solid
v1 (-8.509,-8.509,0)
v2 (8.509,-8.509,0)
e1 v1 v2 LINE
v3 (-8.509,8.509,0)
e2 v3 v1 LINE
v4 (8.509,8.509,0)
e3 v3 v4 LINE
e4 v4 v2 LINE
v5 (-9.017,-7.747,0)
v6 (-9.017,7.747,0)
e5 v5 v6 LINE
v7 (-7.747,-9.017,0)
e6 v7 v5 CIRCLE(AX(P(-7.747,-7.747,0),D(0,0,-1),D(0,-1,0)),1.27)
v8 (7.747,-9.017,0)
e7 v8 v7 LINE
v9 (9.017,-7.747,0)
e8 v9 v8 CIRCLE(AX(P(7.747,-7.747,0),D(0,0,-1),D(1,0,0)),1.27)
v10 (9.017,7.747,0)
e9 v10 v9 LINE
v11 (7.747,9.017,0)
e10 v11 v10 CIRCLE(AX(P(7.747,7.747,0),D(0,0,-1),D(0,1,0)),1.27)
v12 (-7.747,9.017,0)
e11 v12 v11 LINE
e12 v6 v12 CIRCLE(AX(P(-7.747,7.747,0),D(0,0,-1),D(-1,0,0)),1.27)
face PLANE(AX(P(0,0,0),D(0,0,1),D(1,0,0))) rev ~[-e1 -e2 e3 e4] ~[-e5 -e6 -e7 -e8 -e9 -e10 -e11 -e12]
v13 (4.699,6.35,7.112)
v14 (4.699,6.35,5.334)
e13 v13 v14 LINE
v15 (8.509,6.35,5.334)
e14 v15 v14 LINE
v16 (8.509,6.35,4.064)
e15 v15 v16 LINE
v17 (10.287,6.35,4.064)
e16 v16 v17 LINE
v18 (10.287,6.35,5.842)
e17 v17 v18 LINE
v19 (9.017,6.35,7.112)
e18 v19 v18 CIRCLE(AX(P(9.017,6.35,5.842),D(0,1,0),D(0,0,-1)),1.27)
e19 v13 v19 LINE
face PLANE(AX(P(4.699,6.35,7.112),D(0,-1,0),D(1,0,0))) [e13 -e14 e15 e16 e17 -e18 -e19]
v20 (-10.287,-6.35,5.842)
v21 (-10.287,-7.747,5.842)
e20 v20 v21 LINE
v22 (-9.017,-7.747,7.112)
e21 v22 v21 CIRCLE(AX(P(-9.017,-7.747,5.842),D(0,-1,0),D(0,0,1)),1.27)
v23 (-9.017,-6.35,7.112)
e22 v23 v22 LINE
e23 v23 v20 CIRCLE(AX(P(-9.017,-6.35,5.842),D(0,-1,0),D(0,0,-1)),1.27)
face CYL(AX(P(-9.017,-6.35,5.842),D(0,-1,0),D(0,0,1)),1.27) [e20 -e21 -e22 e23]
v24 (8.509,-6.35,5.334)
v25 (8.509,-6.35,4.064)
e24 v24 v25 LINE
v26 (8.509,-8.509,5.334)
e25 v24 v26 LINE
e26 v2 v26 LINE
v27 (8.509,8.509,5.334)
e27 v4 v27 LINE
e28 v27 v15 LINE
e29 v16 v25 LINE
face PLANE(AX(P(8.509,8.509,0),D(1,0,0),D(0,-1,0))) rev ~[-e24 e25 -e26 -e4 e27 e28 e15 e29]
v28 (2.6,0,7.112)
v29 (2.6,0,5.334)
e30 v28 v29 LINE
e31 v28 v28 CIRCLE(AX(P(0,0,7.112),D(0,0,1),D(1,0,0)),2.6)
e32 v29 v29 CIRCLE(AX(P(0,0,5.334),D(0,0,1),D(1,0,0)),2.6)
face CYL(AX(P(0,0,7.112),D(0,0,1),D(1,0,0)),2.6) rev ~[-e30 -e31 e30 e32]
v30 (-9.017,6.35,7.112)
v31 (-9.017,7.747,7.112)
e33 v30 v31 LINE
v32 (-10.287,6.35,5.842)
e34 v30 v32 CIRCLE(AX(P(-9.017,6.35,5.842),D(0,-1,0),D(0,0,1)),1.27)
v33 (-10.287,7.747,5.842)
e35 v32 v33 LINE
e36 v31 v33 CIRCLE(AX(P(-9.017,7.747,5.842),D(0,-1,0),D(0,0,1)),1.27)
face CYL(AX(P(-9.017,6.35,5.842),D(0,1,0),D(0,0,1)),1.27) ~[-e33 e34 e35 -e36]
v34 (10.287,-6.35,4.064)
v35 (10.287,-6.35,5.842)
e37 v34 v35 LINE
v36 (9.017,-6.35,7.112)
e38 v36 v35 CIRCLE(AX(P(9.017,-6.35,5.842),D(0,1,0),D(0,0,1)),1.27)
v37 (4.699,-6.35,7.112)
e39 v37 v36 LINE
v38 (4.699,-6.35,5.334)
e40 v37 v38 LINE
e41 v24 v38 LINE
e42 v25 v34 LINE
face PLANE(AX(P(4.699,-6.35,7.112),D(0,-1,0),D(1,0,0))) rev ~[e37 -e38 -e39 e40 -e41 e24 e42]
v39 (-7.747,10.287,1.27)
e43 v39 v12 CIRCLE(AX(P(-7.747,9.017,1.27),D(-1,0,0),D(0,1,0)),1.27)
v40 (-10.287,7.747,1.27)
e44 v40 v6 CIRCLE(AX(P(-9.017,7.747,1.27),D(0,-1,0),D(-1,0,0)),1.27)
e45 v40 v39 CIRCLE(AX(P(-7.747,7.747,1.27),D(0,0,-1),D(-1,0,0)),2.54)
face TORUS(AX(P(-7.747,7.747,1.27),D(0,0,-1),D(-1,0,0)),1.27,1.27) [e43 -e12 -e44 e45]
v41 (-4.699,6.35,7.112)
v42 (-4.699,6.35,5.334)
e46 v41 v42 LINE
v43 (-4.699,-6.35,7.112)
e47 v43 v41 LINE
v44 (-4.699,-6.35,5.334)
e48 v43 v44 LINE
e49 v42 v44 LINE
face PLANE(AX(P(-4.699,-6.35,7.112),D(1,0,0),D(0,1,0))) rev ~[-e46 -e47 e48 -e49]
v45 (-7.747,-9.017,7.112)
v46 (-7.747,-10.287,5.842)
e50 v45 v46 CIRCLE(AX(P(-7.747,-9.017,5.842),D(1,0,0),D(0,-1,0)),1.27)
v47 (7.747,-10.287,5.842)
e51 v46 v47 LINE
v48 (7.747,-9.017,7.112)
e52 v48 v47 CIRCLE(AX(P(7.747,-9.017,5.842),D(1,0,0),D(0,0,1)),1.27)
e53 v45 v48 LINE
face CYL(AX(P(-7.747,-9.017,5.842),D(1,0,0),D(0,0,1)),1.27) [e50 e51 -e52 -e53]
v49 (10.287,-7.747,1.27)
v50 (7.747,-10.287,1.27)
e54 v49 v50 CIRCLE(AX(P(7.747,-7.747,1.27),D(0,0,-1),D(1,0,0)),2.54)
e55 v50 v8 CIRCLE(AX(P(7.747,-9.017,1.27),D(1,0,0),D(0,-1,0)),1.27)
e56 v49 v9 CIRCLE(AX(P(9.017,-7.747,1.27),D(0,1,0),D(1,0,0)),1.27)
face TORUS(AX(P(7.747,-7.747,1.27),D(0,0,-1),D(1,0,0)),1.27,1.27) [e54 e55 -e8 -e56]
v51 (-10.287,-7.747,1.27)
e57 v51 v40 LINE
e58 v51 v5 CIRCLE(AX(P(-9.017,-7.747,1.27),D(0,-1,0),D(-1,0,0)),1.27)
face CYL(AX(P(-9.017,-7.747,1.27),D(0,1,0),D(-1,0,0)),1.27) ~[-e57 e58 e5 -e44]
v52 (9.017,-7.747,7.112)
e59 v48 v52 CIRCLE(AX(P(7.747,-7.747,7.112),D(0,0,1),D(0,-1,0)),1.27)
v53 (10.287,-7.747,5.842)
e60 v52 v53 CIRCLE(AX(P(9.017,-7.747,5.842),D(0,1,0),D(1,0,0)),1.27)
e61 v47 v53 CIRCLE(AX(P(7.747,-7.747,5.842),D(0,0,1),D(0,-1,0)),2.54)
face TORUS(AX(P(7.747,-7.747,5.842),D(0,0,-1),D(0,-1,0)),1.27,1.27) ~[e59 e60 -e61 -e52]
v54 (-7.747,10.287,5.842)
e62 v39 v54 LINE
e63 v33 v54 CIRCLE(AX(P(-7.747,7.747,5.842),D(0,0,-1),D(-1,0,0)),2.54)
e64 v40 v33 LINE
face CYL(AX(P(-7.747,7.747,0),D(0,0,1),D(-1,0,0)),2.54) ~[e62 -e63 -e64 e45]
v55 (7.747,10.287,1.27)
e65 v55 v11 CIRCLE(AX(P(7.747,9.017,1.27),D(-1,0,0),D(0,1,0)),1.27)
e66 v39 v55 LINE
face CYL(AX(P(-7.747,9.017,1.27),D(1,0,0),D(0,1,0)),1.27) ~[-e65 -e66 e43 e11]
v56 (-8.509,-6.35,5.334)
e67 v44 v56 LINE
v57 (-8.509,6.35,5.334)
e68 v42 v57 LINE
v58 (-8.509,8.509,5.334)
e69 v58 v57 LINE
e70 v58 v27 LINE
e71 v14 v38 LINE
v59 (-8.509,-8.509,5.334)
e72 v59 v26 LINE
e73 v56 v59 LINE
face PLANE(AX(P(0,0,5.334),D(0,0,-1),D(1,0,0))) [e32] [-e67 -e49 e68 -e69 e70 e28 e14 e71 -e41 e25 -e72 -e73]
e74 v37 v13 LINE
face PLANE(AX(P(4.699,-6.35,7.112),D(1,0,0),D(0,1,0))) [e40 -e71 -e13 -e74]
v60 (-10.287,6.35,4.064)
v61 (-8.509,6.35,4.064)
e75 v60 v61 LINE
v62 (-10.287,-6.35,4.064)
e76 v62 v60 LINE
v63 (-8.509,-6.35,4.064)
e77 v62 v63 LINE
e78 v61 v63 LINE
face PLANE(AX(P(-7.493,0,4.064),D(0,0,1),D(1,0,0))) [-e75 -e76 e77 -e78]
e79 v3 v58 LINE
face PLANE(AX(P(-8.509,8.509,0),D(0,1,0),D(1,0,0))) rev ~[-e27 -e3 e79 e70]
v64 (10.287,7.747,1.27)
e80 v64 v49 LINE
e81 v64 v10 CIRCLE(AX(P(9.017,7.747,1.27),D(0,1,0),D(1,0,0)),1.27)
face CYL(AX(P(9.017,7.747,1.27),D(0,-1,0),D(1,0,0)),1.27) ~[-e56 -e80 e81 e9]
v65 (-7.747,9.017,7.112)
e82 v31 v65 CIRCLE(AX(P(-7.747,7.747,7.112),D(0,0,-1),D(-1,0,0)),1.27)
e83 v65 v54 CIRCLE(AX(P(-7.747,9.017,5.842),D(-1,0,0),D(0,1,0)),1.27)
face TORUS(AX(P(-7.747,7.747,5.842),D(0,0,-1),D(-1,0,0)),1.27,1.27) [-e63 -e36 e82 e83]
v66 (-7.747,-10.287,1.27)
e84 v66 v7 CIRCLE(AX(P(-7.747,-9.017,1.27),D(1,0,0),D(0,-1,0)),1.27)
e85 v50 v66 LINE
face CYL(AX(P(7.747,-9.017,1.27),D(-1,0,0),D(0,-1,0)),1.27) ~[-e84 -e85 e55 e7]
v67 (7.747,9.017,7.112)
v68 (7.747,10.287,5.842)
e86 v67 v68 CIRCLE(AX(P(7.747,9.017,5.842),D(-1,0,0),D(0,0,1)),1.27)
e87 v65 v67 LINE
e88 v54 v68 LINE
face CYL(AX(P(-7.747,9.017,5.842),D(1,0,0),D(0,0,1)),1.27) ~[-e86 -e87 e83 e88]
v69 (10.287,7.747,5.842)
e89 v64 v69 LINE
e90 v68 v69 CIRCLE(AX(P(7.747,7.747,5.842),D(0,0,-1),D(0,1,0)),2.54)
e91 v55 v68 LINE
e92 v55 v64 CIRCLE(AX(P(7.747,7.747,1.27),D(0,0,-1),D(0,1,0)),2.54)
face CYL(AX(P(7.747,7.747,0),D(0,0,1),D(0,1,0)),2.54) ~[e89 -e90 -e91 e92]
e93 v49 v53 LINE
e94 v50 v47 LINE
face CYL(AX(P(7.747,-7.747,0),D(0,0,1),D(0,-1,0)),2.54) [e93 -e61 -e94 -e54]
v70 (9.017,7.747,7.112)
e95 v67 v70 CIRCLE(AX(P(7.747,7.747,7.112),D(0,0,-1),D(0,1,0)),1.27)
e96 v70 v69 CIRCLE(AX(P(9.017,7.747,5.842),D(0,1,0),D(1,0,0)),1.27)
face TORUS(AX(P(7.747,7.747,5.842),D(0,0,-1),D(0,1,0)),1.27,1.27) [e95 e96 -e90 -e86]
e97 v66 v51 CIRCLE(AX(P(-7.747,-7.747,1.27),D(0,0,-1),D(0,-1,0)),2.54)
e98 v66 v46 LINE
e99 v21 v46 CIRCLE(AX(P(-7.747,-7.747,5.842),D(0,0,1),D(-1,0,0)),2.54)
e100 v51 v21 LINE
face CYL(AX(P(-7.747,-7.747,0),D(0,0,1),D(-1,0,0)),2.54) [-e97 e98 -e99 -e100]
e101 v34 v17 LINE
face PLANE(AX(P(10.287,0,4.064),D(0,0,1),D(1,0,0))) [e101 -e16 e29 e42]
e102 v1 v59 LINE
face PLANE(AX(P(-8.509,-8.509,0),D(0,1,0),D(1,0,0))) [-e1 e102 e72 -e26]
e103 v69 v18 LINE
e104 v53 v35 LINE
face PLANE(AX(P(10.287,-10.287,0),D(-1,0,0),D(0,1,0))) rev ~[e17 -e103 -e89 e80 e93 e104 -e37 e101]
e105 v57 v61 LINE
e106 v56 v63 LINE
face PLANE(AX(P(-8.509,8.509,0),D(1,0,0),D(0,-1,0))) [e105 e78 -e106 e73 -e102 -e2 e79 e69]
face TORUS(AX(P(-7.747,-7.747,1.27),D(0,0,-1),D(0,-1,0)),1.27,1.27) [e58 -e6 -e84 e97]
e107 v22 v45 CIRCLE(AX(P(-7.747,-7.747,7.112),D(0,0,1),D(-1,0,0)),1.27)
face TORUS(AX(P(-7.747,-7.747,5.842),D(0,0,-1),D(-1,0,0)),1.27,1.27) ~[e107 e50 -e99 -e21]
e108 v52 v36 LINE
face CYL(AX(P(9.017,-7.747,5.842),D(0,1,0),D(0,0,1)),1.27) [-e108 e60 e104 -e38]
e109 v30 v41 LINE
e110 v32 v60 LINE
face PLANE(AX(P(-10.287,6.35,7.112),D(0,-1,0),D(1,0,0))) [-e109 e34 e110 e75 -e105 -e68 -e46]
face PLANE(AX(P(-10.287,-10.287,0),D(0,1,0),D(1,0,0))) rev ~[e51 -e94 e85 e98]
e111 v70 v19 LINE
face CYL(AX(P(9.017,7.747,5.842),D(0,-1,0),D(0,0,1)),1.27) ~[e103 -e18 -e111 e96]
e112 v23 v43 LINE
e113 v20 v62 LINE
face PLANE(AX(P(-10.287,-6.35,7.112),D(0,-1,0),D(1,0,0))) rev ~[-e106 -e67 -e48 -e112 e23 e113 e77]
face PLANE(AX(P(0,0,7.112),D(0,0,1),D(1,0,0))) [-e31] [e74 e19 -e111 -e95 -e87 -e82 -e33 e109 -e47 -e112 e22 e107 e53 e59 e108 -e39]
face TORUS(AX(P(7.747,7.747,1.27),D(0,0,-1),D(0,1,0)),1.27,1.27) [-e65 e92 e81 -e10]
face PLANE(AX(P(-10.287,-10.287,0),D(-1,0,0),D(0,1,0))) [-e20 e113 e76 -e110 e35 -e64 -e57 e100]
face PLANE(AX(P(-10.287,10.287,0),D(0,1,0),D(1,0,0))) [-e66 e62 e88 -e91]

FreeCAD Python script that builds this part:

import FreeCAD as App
import Part
import Sketcher
from FreeCAD import Vector
Q = App.Units.Quantity


def edges_at(feature, points):
    """Names of the edges that pass closest to the given points."""
    edges = feature.Shape.Edges
    near = lambda p: min(range(len(edges)), key=lambda i: edges[i].distToShape(Part.Vertex(*p))[0])
    return sorted({f"Edge{near(p) + 1}" for p in points})

doc = App.newDocument("Part")
params = doc.addObject("Spreadsheet::Sheet", "Params")
for row, (alias, value) in enumerate([
    ("sketch1_width", "0.81 in"),
    ("pad1_length", "0.28 in"),
    ("sketch2_width", "0.67 in"),
    ("pocket1_length", "0.21 in"),
    ("fillet_radius", "0.1 in"),
    ("sketch3_height", "0.5 in"),
    ("sketch3_width", "0.22 in"),
    ("pocket2_length", "0.12 in"),
    ("sketch4_height", "0.5 in"),
    ("sketch4_width", "0.44 in"),
    ("pocket3_length", "0.12 in"),
    ("pocket4_length", "0.07 in"),
    ("fillet2_radius", "0.05 in"),
    ("fillet3_radius", "0.05 in"),
], start=1):
    params.set(f"A{row}", alias)
    params.set(f"B{row}", "=" + value)
    params.setAlias(f"B{row}", alias)

body = doc.addObject("PartDesign::Body", "Body")

# Sketch on XY plane
sketch1 = body.newObject("Sketcher::SketchObject", "Sketch")
sketch1.AttachmentSupport = (doc.getObject("XY_Plane"), [""])
sketch1.MapMode = "FlatFace"
sketch1.addGeometry([
    Part.LineSegment(Vector(-10, 10, 0), Vector(-10, -10, 0)),
    Part.LineSegment(Vector(-10, -10, 0), Vector(10, -10, 0)),
    Part.LineSegment(Vector(10, -10, 0), Vector(10, 10, 0)),
    Part.LineSegment(Vector(10, 10, 0), Vector(-10, 10, 0)),
], False)
sketch1.addConstraint([
    Sketcher.Constraint("Coincident", 0, 2, 1, 1),
    Sketcher.Constraint("Coincident", 1, 2, 2, 1),
    Sketcher.Constraint("Coincident", 2, 2, 3, 1),
    Sketcher.Constraint("Coincident", 3, 2, 0, 1),
    Sketcher.Constraint("Vertical", 0),
    Sketcher.Constraint("Horizontal", 1),
    Sketcher.Constraint("Vertical", 2),
    Sketcher.Constraint("Horizontal", 3),
    Sketcher.Constraint("Symmetric", 0, 2, 2, 2, -1, 1),
    Sketcher.Constraint("Equal", 3, 0),
    Sketcher.Constraint("DistanceX", 1, 1, 1, 2, Q("0.81 in")),
])
sketch1.setExpression("Constraints[10]", "Params.sketch1_width")
pad1 = body.newObject("PartDesign::Pad", "Pad")
pad1.Profile = sketch1
pad1.setExpression("Length", "Params.pad1_length")

# Sketch on XY plane
sketch2 = body.newObject("Sketcher::SketchObject", "Sketch001")
sketch2.AttachmentSupport = (doc.getObject("XY_Plane"), [""])
sketch2.MapMode = "FlatFace"
sketch2.addGeometry([
    Part.LineSegment(Vector(-9, -9, 0), Vector(-9, 9, 0)),
    Part.LineSegment(Vector(-9, 9, 0), Vector(9, 9, 0)),
    Part.LineSegment(Vector(9, 9, 0), Vector(9, -9, 0)),
    Part.LineSegment(Vector(9, -9, 0), Vector(-9, -9, 0)),
], False)
sketch2.addConstraint([
    Sketcher.Constraint("Coincident", 0, 2, 1, 1),
    Sketcher.Constraint("Coincident", 1, 2, 2, 1),
    Sketcher.Constraint("Coincident", 2, 2, 3, 1),
    Sketcher.Constraint("Coincident", 3, 2, 0, 1),
    Sketcher.Constraint("Vertical", 0),
    Sketcher.Constraint("Horizontal", 1),
    Sketcher.Constraint("Vertical", 2),
    Sketcher.Constraint("Horizontal", 3),
    Sketcher.Constraint("Symmetric", 0, 2, 2, 2, -1, 1),
    Sketcher.Constraint("Equal", 3, 0),
    Sketcher.Constraint("DistanceX", 1, 1, 1, 2, Q("0.67 in")),
])
sketch2.setExpression("Constraints[10]", "Params.sketch2_width")
pocket1 = body.newObject("PartDesign::Pocket", "Pocket")
pocket1.Profile = sketch2
pocket1.setExpression("Length", "Params.pocket1_length")
pocket1.Reversed = True
doc.recompute()

fillet = body.newObject("PartDesign::Fillet", "Fillet")
fillet.Base = (pocket1, edges_at(pocket1, [
    (-10.287, -10.287, 3.556),
    (10.287, 10.287, 3.556),
    (10.287, -10.287, 3.556),
    (-10.287, 10.287, 3.556),
]))
fillet.setExpression("Radius", "Params.fillet_radius")

# Sketch on XY plane
sketch3 = body.newObject("Sketcher::SketchObject", "Sketch002")
sketch3.AttachmentSupport = (doc.getObject("XY_Plane"), [""])
sketch3.MapMode = "FlatFace"
sketch3.AttachmentOffset = App.Placement(Vector(0, 0, 0.28 * 25.4), App.Rotation())
sketch3.addGeometry([
    Part.LineSegment(Vector(-10, 6, 0), Vector(-10, -6, 0)),
    Part.LineSegment(Vector(-10, -6, 0), Vector(-5, -6, 0)),
    Part.LineSegment(Vector(-5, -6, 0), Vector(-5, 6, 0)),
    Part.LineSegment(Vector(-5, 6, 0), Vector(-10, 6, 0)),
], False)
sketch3.addConstraint([
    Sketcher.Constraint("Coincident", 0, 2, 1, 1),
    Sketcher.Constraint("Coincident", 1, 2, 2, 1),
    Sketcher.Constraint("Coincident", 2, 2, 3, 1),
    Sketcher.Constraint("Coincident", 3, 2, 0, 1),
    Sketcher.Constraint("Vertical", 0),
    Sketcher.Constraint("Horizontal", 1),
    Sketcher.Constraint("Vertical", 2),
    Sketcher.Constraint("Horizontal", 3),
    Sketcher.Constraint("DistanceY", 0, 2, 0, 1, Q("0.5 in")),
    Sketcher.Constraint("DistanceX", 1, 1, 1, 2, Q("0.22 in")),
    Sketcher.Constraint("DistanceY", 0, 2, -1, 1, Q("0.25 in")),
    Sketcher.Constraint("DistanceX", 0, 2, -1, 1, Q("0.405 in")),
])
sketch3.setExpression("Constraints[8]", "Params.sketch3_height")
sketch3.setExpression("Constraints[9]", "Params.sketch3_width")
pocket2 = body.newObject("PartDesign::Pocket", "Pocket001")
pocket2.Profile = sketch3
pocket2.setExpression("Length", "Params.pocket2_length")

# Sketch on XY plane
sketch4 = body.newObject("Sketcher::SketchObject", "Sketch003")
sketch4.AttachmentSupport = (doc.getObject("XY_Plane"), [""])
sketch4.MapMode = "FlatFace"
sketch4.AttachmentOffset = App.Placement(Vector(0, 0, 0.28 * 25.4), App.Rotation())
sketch4.addGeometry([
    Part.LineSegment(Vector(5, 6, 0), Vector(5, -6, 0)),
    Part.LineSegment(Vector(5, -6, 0), Vector(16, -6, 0)),
    Part.LineSegment(Vector(16, -6, 0), Vector(16, 6, 0)),
    Part.LineSegment(Vector(16, 6, 0), Vector(5, 6, 0)),
], False)
sketch4.addConstraint([
    Sketcher.Constraint("Coincident", 0, 2, 1, 1),
    Sketcher.Constraint("Coincident", 1, 2, 2, 1),
    Sketcher.Constraint("Coincident", 2, 2, 3, 1),
    Sketcher.Constraint("Coincident", 3, 2, 0, 1),
    Sketcher.Constraint("Vertical", 0),
    Sketcher.Constraint("Horizontal", 1),
    Sketcher.Constraint("Vertical", 2),
    Sketcher.Constraint("Horizontal", 3),
    Sketcher.Constraint("DistanceY", 0, 2, 0, 1, Q("0.5 in")),
    Sketcher.Constraint("DistanceX", 1, 1, 1, 2, Q("0.44 in")),
    Sketcher.Constraint("DistanceY", 0, 2, -1, 1, Q("0.25 in")),
    Sketcher.Constraint("DistanceX", -1, 1, 0, 2, Q("0.185 in")),
])
sketch4.setExpression("Constraints[8]", "Params.sketch4_height")
sketch4.setExpression("Constraints[9]", "Params.sketch4_width")
pocket3 = body.newObject("PartDesign::Pocket", "Pocket002")
pocket3.Profile = sketch4
pocket3.setExpression("Length", "Params.pocket3_length")

# Sketch on XY plane
sketch5 = body.newObject("Sketcher::SketchObject", "Sketch004")
sketch5.AttachmentSupport = (doc.getObject("XY_Plane"), [""])
sketch5.MapMode = "FlatFace"
sketch5.AttachmentOffset = App.Placement(Vector(0, 0, 0.28 * 25.4), App.Rotation())
sketch5.addGeometry(Part.Circle(Vector(0, 0, 0), Vector(0, 0, 1), 2.6), False)
sketch5.addConstraint([
    Sketcher.Constraint("Coincident", 0, 3, -1, 1),
    Sketcher.Constraint("Diameter", 0, 5.2),
])
pocket4 = body.newObject("PartDesign::Pocket", "Pocket003")
pocket4.Profile = sketch5
pocket4.setExpression("Length", "Params.pocket4_length")
doc.recompute()

fillet2 = body.newObject("PartDesign::Fillet", "Fillet001")
fillet2.Base = (pocket4, edges_at(pocket4, [(0, 10.287, 7.112), (0, -10.287, 7.112)]))
fillet2.setExpression("Radius", "Params.fillet2_radius")
doc.recompute()

fillet3 = body.newObject("PartDesign::Fillet", "Fillet002")
fillet3.Base = (fillet2, edges_at(fillet2, [(-10.287, 0, 0), (0, 10.287, 0), (-9.543, 9.543, 0)]))
fillet3.setExpression("Radius", "Params.fillet3_radius")

doc.recompute()
